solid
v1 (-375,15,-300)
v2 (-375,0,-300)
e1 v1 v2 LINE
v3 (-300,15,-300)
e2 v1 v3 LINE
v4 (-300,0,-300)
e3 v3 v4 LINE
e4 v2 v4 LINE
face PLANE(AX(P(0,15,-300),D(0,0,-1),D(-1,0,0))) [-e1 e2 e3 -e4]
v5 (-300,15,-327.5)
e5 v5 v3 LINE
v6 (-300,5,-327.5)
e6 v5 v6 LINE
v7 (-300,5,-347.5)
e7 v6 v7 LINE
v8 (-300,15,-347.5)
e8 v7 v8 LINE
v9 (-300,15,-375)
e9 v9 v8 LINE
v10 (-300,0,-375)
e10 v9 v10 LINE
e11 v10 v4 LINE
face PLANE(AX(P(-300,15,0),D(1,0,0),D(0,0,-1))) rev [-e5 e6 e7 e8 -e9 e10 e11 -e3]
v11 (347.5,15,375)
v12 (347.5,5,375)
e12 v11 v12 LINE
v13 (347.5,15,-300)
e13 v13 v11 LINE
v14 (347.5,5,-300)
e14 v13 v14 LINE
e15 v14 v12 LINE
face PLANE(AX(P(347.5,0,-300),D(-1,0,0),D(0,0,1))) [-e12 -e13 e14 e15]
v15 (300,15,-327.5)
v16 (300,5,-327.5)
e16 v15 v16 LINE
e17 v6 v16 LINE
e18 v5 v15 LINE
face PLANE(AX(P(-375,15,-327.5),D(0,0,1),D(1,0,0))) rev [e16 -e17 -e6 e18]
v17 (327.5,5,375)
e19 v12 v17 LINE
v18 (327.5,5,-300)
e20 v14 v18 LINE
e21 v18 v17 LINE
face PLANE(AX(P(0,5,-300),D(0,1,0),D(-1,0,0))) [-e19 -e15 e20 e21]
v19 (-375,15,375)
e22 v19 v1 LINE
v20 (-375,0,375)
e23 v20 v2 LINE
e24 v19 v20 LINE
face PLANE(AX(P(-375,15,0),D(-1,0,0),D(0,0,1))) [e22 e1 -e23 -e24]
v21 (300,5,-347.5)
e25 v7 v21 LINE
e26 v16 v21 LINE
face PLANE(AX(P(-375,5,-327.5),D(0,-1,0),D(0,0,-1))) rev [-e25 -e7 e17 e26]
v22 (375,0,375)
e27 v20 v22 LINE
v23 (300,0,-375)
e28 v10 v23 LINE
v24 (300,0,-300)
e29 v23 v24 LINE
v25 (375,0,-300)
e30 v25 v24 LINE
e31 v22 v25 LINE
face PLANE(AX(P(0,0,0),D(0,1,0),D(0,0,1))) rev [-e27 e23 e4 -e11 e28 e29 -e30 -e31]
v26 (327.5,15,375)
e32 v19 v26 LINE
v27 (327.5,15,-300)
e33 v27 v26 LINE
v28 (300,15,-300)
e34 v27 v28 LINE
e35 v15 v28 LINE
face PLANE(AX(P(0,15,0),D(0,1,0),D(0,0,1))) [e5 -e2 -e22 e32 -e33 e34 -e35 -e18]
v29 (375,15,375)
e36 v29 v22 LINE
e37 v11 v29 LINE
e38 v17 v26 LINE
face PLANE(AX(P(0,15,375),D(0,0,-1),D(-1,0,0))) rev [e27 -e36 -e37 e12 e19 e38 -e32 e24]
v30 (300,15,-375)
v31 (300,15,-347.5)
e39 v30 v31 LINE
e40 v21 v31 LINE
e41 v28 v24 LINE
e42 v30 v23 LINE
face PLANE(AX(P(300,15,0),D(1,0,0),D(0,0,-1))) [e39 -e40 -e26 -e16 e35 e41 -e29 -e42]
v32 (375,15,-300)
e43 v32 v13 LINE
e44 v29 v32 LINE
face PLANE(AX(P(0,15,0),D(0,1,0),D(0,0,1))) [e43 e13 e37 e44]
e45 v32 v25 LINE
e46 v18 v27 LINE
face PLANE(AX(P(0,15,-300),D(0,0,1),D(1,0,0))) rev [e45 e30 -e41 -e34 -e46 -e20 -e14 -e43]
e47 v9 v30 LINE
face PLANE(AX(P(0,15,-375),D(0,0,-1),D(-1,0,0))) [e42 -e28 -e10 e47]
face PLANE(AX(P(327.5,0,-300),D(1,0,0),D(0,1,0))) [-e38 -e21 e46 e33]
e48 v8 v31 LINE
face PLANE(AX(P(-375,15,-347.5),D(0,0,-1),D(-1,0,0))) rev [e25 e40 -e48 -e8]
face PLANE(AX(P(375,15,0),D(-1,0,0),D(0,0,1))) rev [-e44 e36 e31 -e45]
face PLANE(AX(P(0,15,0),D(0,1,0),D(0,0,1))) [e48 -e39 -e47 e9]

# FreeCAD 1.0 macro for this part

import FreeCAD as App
import Part
import Sketcher
from FreeCAD import Vector
Q = App.Units.Quantity

doc = App.newDocument("Part")
body = doc.addObject("PartDesign::Body", "Body")

# Sketch on XZ plane
sketch1 = body.newObject("Sketcher::SketchObject", "Sketch")
sketch1.AttachmentSupport = (doc.getObject("XZ_Plane"), [""])
sketch1.MapMode = "FlatFace"
sketch1.addGeometry(Part.LineSegment(Vector(-375, -300, 0), Vector(-375, 375, 0)), False)
sketch1.addGeometry(Part.LineSegment(Vector(-375, 375, 0), Vector(375, 375, 0)), False)
sketch1.addGeometry(Part.LineSegment(Vector(375, 375, 0), Vector(375, -300, 0)), False)
sketch1.addGeometry(Part.LineSegment(Vector(375, -300, 0), Vector(300, -300, 0)), False)
sketch1.addGeometry(Part.LineSegment(Vector(300, -300, 0), Vector(300, -375, 0)), False)
sketch1.addGeometry(Part.LineSegment(Vector(300, -375, 0), Vector(-300, -375, 0)), False)
sketch1.addGeometry(Part.LineSegment(Vector(-300, -375, 0), Vector(-300, -300, 0)), False)
sketch1.addGeometry(Part.LineSegment(Vector(-300, -300, 0), Vector(-375, -300, 0)), False)
sketch1.addConstraint(Sketcher.Constraint("Coincident", 0, 2, 1, 1))
sketch1.addConstraint(Sketcher.Constraint("Coincident", 1, 2, 2, 1))
sketch1.addConstraint(Sketcher.Constraint("Coincident", 2, 2, 3, 1))
sketch1.addConstraint(Sketcher.Constraint("Coincident", 3, 2, 4, 1))
sketch1.addConstraint(Sketcher.Constraint("Coincident", 4, 2, 5, 1))
sketch1.addConstraint(Sketcher.Constraint("Coincident", 5, 2, 6, 1))
sketch1.addConstraint(Sketcher.Constraint("Coincident", 6, 2, 7, 1))
sketch1.addConstraint(Sketcher.Constraint("Coincident", 7, 2, 0, 1))
sketch1.addConstraint(Sketcher.Constraint("Vertical", 0))
sketch1.addConstraint(Sketcher.Constraint("Horizontal", 1))
sketch1.addConstraint(Sketcher.Constraint("Vertical", 2))
sketch1.addConstraint(Sketcher.Constraint("Horizontal", 3))
sketch1.addConstraint(Sketcher.Constraint("Vertical", 4))
sketch1.addConstraint(Sketcher.Constraint("Horizontal", 5))
sketch1.addConstraint(Sketcher.Constraint("Vertical", 6))
sketch1.addConstraint(Sketcher.Constraint("Horizontal", 7))
sketch1.addConstraint(Sketcher.Constraint("Symmetric", 3, 2, 6, 2, -2))
sketch1.addConstraint(Sketcher.Constraint("Equal", 3, 7))
sketch1.addConstraint(Sketcher.Constraint("Equal", 7, 4))
sketch1.addConstraint(Sketcher.Constraint("DistanceX", 1, 1, 1, 2, Q("750 mm")))
sketch1.addConstraint(Sketcher.Constraint("DistanceX", 3, 2, 3, 1, Q("75 mm")))
sketch1.addConstraint(Sketcher.Constraint("DistanceY", 0, 1, 0, 2, Q("675 mm")))
sketch1.addConstraint(Sketcher.Constraint("DistanceY", -1, 1, 0, 2, Q("375 mm")))
pad1 = body.newObject("PartDesign::Pad", "Pad")
pad1.Profile = sketch1
pad1.Length = 15
pad1.Reversed = True

# Sketch on XY plane
sketch2 = body.newObject("Sketcher::SketchObject", "Sketch001")
sketch2.AttachmentSupport = (doc.getObject("XY_Plane"), [""])
sketch2.MapMode = "FlatFace"
sketch2.AttachmentOffset = App.Placement(Vector(0, 0, 375), App.Rotation())
sketch2.addGeometry(Part.LineSegment(Vector(328, 15, 0), Vector(328, 5, 0)), False)
sketch2.addGeometry(Part.LineSegment(Vector(328, 5, 0), Vector(348, 5, 0)), False)
sketch2.addGeometry(Part.LineSegment(Vector(348, 5, 0), Vector(348, 15, 0)), False)
sketch2.addGeometry(Part.LineSegment(Vector(348, 15, 0), Vector(328, 15, 0)), False)
sketch2.addConstraint(Sketcher.Constraint("Coincident", 0, 2, 1, 1))
sketch2.addConstraint(Sketcher.Constraint("Coincident", 1, 2, 2, 1))
sketch2.addConstraint(Sketcher.Constraint("Coincident", 2, 2, 3, 1))
sketch2.addConstraint(Sketcher.Constraint("Coincident", 3, 2, 0, 1))
sketch2.addConstraint(Sketcher.Constraint("Vertical", 0))
sketch2.addConstraint(Sketcher.Constraint("Horizontal", 1))
sketch2.addConstraint(Sketcher.Constraint("Vertical", 2))
sketch2.addConstraint(Sketcher.Constraint("Horizontal", 3))
sketch2.addConstraint(Sketcher.Constraint("DistanceX", 1, 1, 1, 2, Q("20 mm")))
sketch2.addConstraint(Sketcher.Constraint("DistanceY", 0, 2, 0, 1, Q("10 mm")))
sketch2.addConstraint(Sketcher.Constraint("DistanceY", -1, 1, 0, 2, Q("5 mm")))
sketch2.addConstraint(Sketcher.Constraint("DistanceX", -1, 1, 0, 2, Q("327.5 mm")))
pocket1 = body.newObject("PartDesign::Pocket", "Pocket")
pocket1.Profile = sketch2
pocket1.Length = 675

# Sketch on YZ plane
sketch3 = body.newObject("Sketcher::SketchObject", "Sketch002")
sketch3.AttachmentSupport = (doc.getObject("YZ_Plane"), [""])
sketch3.MapMode = "FlatFace"
sketch3.AttachmentOffset = App.Placement(Vector(0, 0, 375), App.Rotation())
sketch3.addGeometry(Part.LineSegment(Vector(15, -328, 0), Vector(5, -328, 0)), False)
sketch3.addGeometry(Part.LineSegment(Vector(5, -328, 0), Vector(5, -348, 0)), False)
sketch3.addGeometry(Part.LineSegment(Vector(5, -348, 0), Vector(15, -348, 0)), False)
sketch3.addGeometry(Part.LineSegment(Vector(15, -348, 0), Vector(15, -328, 0)), False)
sketch3.addConstraint(Sketcher.Constraint("Coincident", 0, 2, 1, 1))
sketch3.addConstraint(Sketcher.Constraint("Coincident", 1, 2, 2, 1))
sketch3.addConstraint(Sketcher.Constraint("Coincident", 2, 2, 3, 1))
sketch3.addConstraint(Sketcher.Constraint("Coincident", 3, 2, 0, 1))
sketch3.addConstraint(Sketcher.Constraint("Horizontal", 0))
sketch3.addConstraint(Sketcher.Constraint("Vertical", 1))
sketch3.addConstraint(Sketcher.Constraint("Horizontal", 2))
sketch3.addConstraint(Sketcher.Constraint("Vertical", 3))
sketch3.addConstraint(Sketcher.Constraint("DistanceX", 0, 2, 0, 1, Q("10 mm")))
sketch3.addConstraint(Sketcher.Constraint("DistanceY", 1, 2, 1, 1, Q("20 mm")))
sketch3.addConstraint(Sketcher.Constraint("DistanceX", -1, 1, 0, 2, Q("5 mm")))
sketch3.addConstraint(Sketcher.Constraint("DistanceY", 0, 2, -1, 1, Q("327.5 mm")))
pocket2 = body.newObject("PartDesign::Pocket", "Pocket001")
pocket2.Profile = sketch3
pocket2.Type = "ThroughAll"

doc.recompute()
